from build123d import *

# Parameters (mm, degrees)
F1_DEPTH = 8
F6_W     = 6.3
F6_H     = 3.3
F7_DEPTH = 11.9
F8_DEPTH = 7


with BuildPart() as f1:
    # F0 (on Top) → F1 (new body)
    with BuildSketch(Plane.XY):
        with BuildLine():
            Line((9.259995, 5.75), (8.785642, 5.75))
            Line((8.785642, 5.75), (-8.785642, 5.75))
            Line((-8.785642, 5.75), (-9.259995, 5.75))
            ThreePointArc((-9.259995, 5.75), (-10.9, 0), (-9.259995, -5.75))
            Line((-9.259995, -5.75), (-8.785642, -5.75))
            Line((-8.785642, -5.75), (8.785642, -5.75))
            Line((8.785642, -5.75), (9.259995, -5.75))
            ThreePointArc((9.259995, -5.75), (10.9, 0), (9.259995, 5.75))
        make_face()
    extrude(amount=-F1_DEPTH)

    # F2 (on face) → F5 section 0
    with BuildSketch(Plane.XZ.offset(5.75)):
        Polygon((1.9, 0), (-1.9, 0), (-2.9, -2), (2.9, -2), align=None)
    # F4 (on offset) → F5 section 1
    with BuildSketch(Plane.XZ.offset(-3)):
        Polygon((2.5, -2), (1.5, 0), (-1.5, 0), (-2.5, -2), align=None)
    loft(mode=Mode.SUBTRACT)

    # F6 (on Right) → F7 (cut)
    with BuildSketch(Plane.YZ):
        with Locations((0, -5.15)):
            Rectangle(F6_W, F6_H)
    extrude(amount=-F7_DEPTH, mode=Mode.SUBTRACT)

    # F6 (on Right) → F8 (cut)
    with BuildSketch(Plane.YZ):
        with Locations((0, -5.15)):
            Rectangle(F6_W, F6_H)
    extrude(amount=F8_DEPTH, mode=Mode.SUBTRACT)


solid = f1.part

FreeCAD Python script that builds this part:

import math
import FreeCAD as App
import Part
import Sketcher
from FreeCAD import Vector
Q = App.Units.Quantity

doc = App.newDocument("Part")
body = doc.addObject("PartDesign::Body", "Body")

sketch1 = body.newObject("Sketcher::SketchObject", "Sketch")
sketch1.AttachmentSupport = (doc.getObject("XY_Plane"), [""])
sketch1.MapMode = "FlatFace"
sketch1.addGeometry([
    Part.LineSegment(Vector(9, 6, 0), Vector(-9, 6, 0)),
    Part.ArcOfCircle(Part.Circle(Vector(0, 0, 0), Vector(0, 0, 1), 11), math.radians(148), math.radians(212)),
    Part.LineSegment(Vector(-9, -6, 0), Vector(9, -6, 0)),
    Part.ArcOfCircle(Part.Circle(Vector(0, 0, 0), Vector(0, 0, 1), 11), math.radians(-32), math.radians(32)),
], False)
sketch1.addConstraint([
    Sketcher.Constraint("Coincident", 0, 2, 1, 1),
    Sketcher.Constraint("Coincident", 1, 2, 2, 1),
    Sketcher.Constraint("Coincident", 2, 2, 3, 1),
    Sketcher.Constraint("Coincident", 3, 2, 0, 1),
    Sketcher.Constraint("Horizontal", 0),
    Sketcher.Constraint("Horizontal", 2),
    Sketcher.Constraint("Coincident", 1, 3, -1, 1),
    Sketcher.Constraint("Coincident", 3, 3, -1, 1),
    Sketcher.Constraint("Equal", 1, 3),
    Sketcher.Constraint("Vertical", 0, 2, 1, 2),
    Sketcher.Constraint("DistanceY", 1, 2, 0, 2, Q("11.5 mm")),
    Sketcher.Constraint("Radius", 1, Q("10.900002 mm")),
])
pad1 = body.newObject("PartDesign::Pad", "Pad")
pad1.Profile = sketch1
pad1.Length = 8
pad1.Reversed = True

sketch2 = body.newObject("Sketcher::SketchObject", "Sketch001")
sketch2.AttachmentSupport = (doc.getObject("XZ_Plane"), [""])
sketch2.MapMode = "FlatFace"
sketch2.AttachmentOffset = App.Placement(Vector(0, 0, 5.75), App.Rotation())
sketch2.addGeometry([
    Part.LineSegment(Vector(1.9, 0, 0), Vector(-1.9, 0, 0)),
    Part.LineSegment(Vector(-1.9, 0, 0), Vector(-2.9, -2, 0)),
    Part.LineSegment(Vector(-2.9, -2, 0), Vector(2.9, -2, 0)),
    Part.LineSegment(Vector(2.9, -2, 0), Vector(1.9, 0, 0)),
], False)
sketch2.addConstraint([
    Sketcher.Constraint("Coincident", 0, 2, 1, 1),
    Sketcher.Constraint("Coincident", 1, 2, 2, 1),
    Sketcher.Constraint("Coincident", 2, 2, 3, 1),
    Sketcher.Constraint("Coincident", 3, 2, 0, 1),
    Sketcher.Constraint("Horizontal", 0),
    Sketcher.Constraint("Horizontal", 2),
    Sketcher.Constraint("Symmetric", 0, 2, 3, 2, -1, 1),
    Sketcher.Constraint("Equal", 1, 3),
    Sketcher.Constraint("DistanceX", 0, 2, 0, 1, Q("3.8 mm")),
    Sketcher.Constraint("DistanceX", 2, 1, 2, 2, Q("5.8 mm")),
    Sketcher.Constraint("DistanceY", 1, 2, -1, 1, Q("2 mm")),
])

sketch3 = body.newObject("Sketcher::SketchObject", "Sketch002")
sketch3.AttachmentSupport = (doc.getObject("XZ_Plane"), [""])
sketch3.MapMode = "FlatFace"
sketch3.AttachmentOffset = App.Placement(Vector(0, 0, -3), App.Rotation())
sketch3.addGeometry([
    Part.LineSegment(Vector(2.5, -2, 0), Vector(1.5, 0, 0)),
    Part.LineSegment(Vector(1.5, 0, 0), Vector(-1.5, 0, 0)),
    Part.LineSegment(Vector(-1.5, 0, 0), Vector(-2.5, -2, 0)),
    Part.LineSegment(Vector(-2.5, -2, 0), Vector(2.5, -2, 0)),
], False)
sketch3.addConstraint([
    Sketcher.Constraint("Coincident", 0, 2, 1, 1),
    Sketcher.Constraint("Coincident", 1, 2, 2, 1),
    Sketcher.Constraint("Coincident", 2, 2, 3, 1),
    Sketcher.Constraint("Coincident", 3, 2, 0, 1),
    Sketcher.Constraint("Horizontal", 1),
    Sketcher.Constraint("Horizontal", 3),
    Sketcher.Constraint("Symmetric", 0, 2, 1, 2, -1, 1),
    Sketcher.Constraint("Equal", 0, 2),
    Sketcher.Constraint("DistanceX", 1, 2, 1, 1, Q("3 mm")),
    Sketcher.Constraint("DistanceX", 3, 1, 3, 2, Q("5 mm")),
    Sketcher.Constraint("DistanceY", 2, 2, -1, 1, Q("2 mm")),
])

subtractiveloft = body.newObject("PartDesign::SubtractiveLoft", "SubtractiveLoft")
subtractiveloft.Profile = sketch2
subtractiveloft.Sections = [sketch3]

sketch4 = body.newObject("Sketcher::SketchObject", "Sketch003")
sketch4.AttachmentSupport = (doc.getObject("YZ_Plane"), [""])
sketch4.MapMode = "FlatFace"
sketch4.addGeometry([
    Part.LineSegment(Vector(-3.1, -3.5, 0), Vector(-3.1, -6.8, 0)),
    Part.LineSegment(Vector(-3.1, -6.8, 0), Vector(3.1, -6.8, 0)),
    Part.LineSegment(Vector(3.1, -6.8, 0), Vector(3.1, -3.5, 0)),
    Part.LineSegment(Vector(3.1, -3.5, 0), Vector(-3.1, -3.5, 0)),
], False)
sketch4.addConstraint([
    Sketcher.Constraint("Coincident", 0, 2, 1, 1),
    Sketcher.Constraint("Coincident", 1, 2, 2, 1),
    Sketcher.Constraint("Coincident", 2, 2, 3, 1),
    Sketcher.Constraint("Coincident", 3, 2, 0, 1),
    Sketcher.Constraint("Vertical", 0),
    Sketcher.Constraint("Horizontal", 1),
    Sketcher.Constraint("Vertical", 2),
    Sketcher.Constraint("Horizontal", 3),
    Sketcher.Constraint("DistanceX", 1, 1, 1, 2, Q("6.3 mm")),
    Sketcher.Constraint("DistanceY", 0, 2, 0, 1, Q("3.3 mm")),
    Sketcher.Constraint("DistanceY", 0, 2, -1, 1, Q("6.8 mm")),
    Sketcher.Constraint("DistanceX", 0, 2, -1, 1, Q("3.15 mm")),
])
pocket1 = body.newObject("PartDesign::Pocket", "Pocket")
pocket1.Profile = sketch4
pocket1.Length = 11.9

sketch5 = body.newObject("Sketcher::SketchObject", "Sketch004")
sketch5.AttachmentSupport = (doc.getObject("YZ_Plane"), [""])
sketch5.MapMode = "FlatFace"
sketch5.addGeometry([
    Part.LineSegment(Vector(-3.1, -3.5, 0), Vector(-3.1, -6.8, 0)),
    Part.LineSegment(Vector(-3.1, -6.8, 0), Vector(3.1, -6.8, 0)),
    Part.LineSegment(Vector(3.1, -6.8, 0), Vector(3.1, -3.5, 0)),
    Part.LineSegment(Vector(3.1, -3.5, 0), Vector(-3.1, -3.5, 0)),
], False)
sketch5.addConstraint([
    Sketcher.Constraint("Coincident", 0, 2, 1, 1),
    Sketcher.Constraint("Coincident", 1, 2, 2, 1),
    Sketcher.Constraint("Coincident", 2, 2, 3, 1),
    Sketcher.Constraint("Coincident", 3, 2, 0, 1),
    Sketcher.Constraint("Vertical", 0),
    Sketcher.Constraint("Horizontal", 1),
    Sketcher.Constraint("Vertical", 2),
    Sketcher.Constraint("Horizontal", 3),
    Sketcher.Constraint("DistanceX", 1, 1, 1, 2, Q("6.3 mm")),
    Sketcher.Constraint("DistanceY", 0, 2, 0, 1, Q("3.3 mm")),
    Sketcher.Constraint("DistanceY", 0, 2, -1, 1, Q("6.8 mm")),
    Sketcher.Constraint("DistanceX", 0, 2, -1, 1, Q("3.15 mm")),
])
pocket2 = body.newObject("PartDesign::Pocket", "Pocket001")
pocket2.Profile = sketch5
pocket2.Length = 7
pocket2.Reversed = True

doc.recompute()
